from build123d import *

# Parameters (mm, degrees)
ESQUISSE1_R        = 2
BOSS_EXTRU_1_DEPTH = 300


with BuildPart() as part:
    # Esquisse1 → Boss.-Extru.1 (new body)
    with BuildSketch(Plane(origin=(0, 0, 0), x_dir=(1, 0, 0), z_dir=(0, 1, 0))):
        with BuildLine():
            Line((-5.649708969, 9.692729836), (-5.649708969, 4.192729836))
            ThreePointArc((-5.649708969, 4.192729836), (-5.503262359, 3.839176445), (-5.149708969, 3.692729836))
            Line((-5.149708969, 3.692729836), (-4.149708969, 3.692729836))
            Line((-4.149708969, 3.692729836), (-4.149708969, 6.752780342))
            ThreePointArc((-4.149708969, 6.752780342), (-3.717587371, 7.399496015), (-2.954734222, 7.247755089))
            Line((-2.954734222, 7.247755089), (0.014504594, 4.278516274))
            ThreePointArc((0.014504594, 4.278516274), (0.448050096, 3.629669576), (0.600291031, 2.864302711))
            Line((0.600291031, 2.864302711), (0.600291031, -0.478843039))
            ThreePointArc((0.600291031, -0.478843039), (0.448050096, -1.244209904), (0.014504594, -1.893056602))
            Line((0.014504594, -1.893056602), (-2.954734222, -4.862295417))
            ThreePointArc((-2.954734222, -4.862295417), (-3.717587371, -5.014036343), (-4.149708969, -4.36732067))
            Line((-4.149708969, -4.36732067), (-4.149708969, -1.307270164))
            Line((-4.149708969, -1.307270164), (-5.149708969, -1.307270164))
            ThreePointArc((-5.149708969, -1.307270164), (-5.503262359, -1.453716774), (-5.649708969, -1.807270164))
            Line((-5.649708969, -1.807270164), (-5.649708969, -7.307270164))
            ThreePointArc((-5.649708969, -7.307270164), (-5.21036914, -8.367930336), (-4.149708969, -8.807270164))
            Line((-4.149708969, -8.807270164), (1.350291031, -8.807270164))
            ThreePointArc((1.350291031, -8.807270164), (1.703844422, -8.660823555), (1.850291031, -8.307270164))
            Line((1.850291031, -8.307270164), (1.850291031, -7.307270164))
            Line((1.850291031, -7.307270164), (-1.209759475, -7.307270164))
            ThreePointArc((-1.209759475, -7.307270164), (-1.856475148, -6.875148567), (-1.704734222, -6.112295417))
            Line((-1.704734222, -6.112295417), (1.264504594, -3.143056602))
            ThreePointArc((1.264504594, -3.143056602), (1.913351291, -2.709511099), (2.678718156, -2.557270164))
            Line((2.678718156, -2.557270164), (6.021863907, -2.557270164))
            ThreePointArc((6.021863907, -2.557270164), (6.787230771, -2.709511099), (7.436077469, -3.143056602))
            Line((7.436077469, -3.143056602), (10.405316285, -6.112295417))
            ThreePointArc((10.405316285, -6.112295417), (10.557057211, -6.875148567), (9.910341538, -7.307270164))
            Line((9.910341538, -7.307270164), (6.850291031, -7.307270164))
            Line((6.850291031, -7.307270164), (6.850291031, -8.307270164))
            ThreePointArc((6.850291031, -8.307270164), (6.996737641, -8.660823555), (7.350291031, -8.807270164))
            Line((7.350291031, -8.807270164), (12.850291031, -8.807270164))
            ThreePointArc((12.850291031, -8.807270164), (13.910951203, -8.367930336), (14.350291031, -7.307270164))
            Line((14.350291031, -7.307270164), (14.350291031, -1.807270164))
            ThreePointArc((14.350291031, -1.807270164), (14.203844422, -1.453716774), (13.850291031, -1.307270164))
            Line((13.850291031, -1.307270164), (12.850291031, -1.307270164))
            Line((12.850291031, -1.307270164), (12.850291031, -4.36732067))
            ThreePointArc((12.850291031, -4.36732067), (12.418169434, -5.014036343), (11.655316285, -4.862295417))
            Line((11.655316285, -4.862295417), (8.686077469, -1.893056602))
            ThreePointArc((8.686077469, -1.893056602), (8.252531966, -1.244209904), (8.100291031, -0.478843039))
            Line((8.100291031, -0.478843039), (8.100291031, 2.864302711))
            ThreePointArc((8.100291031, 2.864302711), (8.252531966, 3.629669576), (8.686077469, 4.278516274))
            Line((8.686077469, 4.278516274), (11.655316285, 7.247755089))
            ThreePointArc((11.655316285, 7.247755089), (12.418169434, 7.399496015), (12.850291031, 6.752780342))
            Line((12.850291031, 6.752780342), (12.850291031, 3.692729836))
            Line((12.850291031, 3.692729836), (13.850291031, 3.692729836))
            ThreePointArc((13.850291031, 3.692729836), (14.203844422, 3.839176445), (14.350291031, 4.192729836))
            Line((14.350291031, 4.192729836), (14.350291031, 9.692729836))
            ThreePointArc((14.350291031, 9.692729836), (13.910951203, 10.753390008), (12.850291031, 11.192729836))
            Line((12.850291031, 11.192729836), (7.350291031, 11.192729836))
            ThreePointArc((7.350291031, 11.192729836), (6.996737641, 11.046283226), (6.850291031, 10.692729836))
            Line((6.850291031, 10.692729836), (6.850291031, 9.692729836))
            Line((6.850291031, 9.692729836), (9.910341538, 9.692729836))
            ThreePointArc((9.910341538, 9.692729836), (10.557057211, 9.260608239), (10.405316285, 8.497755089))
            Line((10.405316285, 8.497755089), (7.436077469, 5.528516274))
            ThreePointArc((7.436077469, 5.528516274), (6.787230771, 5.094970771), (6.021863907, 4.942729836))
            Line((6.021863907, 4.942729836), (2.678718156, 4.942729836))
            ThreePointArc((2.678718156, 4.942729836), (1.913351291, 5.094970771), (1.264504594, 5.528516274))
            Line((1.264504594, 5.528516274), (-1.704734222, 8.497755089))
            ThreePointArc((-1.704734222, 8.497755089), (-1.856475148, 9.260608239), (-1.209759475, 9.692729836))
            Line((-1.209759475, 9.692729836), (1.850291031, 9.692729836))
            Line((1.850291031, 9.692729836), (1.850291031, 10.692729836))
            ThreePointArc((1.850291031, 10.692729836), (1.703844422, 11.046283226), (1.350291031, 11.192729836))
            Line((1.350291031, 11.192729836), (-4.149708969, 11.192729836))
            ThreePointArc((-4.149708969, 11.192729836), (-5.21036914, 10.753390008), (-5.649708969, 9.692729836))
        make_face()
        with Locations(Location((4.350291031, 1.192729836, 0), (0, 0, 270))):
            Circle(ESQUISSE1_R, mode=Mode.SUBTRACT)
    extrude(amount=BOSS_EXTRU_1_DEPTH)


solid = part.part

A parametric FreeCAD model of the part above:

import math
import FreeCAD as App
import Part
import Sketcher

V = App.Vector

doc = App.newDocument("Part")
params = doc.addObject("Spreadsheet::Sheet", "Params")
for row, (alias, value) in enumerate([
    ("sketch1_diameter", "4 mm"),
    ("sketch1_radius", "0.5 mm"),
    ("sketch1_radius2", "0.7 mm"),
    ("sketch1_radius3", "1.5 mm"),
    ("sketch1_width", "5.5 mm"),
    ("pad1_length", "300 mm"),
], start=1):
    params.set(f"A{row}", alias)
    params.set(f"B{row}", "=" + value)
    params.setAlias(f"B{row}", alias)

body = doc.addObject("PartDesign::Body", "Body")

# Sketch on XZ plane
sketch1 = doc.addObject("Sketcher::SketchObject", "Sketch")
body.addObject(sketch1)
sketch1.AttachmentSupport = (doc.XZ_Plane, [""])
sketch1.MapMode = "FlatFace"
sketch1.addGeometry([
    Part.LineSegment(V(-5.65, -9.69, 0), V(-5.65, -4.19, 0)),  # 0
    Part.ArcOfCircle(Part.Circle(V(-5.15, -4.19, 0), V(0, 0, 1), 0.5), math.radians(90), math.radians(180)),  # 1
    Part.LineSegment(V(-5.15, -3.69, 0), V(-4.15, -3.69, 0)),  # 2
    Part.LineSegment(V(-4.15, -3.69, 0), V(-4.15, -6.75, 0)),  # 3
    Part.ArcOfCircle(Part.Circle(V(-3.45, -6.75, 0), V(0, 0, 1), 0.7), math.radians(180), math.radians(315)),  # 4
    Part.LineSegment(V(-2.95, -7.25, 0), V(0.01, -4.28, 0)),  # 5
    Part.ArcOfCircle(Part.Circle(V(-1.4, -2.86, 0), V(0, 0, 1), 2), math.radians(-45), math.radians(0)),  # 6
    Part.LineSegment(V(0.6, -2.86, 0), V(0.6, 0.48, 0)),  # 7
    Part.ArcOfCircle(Part.Circle(V(-1.4, 0.48, 0), V(0, 0, 1), 2), math.radians(0), math.radians(45)),  # 8
    Part.LineSegment(V(0.01, 1.89, 0), V(-2.95, 4.86, 0)),  # 9
    Part.ArcOfCircle(Part.Circle(V(-3.45, 4.37, 0), V(0, 0, 1), 0.7), math.radians(45), math.radians(180)),  # 10
    Part.LineSegment(V(-4.15, 4.37, 0), V(-4.15, 1.31, 0)),  # 11
    Part.LineSegment(V(-4.15, 1.31, 0), V(-5.15, 1.31, 0)),  # 12
    Part.ArcOfCircle(Part.Circle(V(-5.15, 1.81, 0), V(0, 0, 1), 0.5), math.radians(-180), math.radians(-90)),  # 13
    Part.LineSegment(V(-5.65, 1.81, 0), V(-5.65, 7.31, 0)),  # 14
    Part.ArcOfCircle(Part.Circle(V(-4.15, 7.31, 0), V(0, 0, 1), 1.5), math.radians(90), math.radians(180)),  # 15
    Part.LineSegment(V(-4.15, 8.81, 0), V(1.35, 8.81, 0)),  # 16
    Part.ArcOfCircle(Part.Circle(V(1.35, 8.31, 0), V(0, 0, 1), 0.5), math.radians(0), math.radians(90)),  # 17
    Part.LineSegment(V(1.85, 8.31, 0), V(1.85, 7.31, 0)),  # 18
    Part.LineSegment(V(1.85, 7.31, 0), V(-1.21, 7.31, 0)),  # 19
    Part.ArcOfCircle(Part.Circle(V(-1.21, 6.61, 0), V(0, 0, 1), 0.7), math.radians(90), math.radians(225)),  # 20
    Part.LineSegment(V(-1.7, 6.11, 0), V(1.26, 3.14, 0)),  # 21
    Part.ArcOfCircle(Part.Circle(V(2.68, 4.56, 0), V(0, 0, 1), 2), math.radians(-135), math.radians(-90)),  # 22
    Part.LineSegment(V(2.68, 2.56, 0), V(6.02, 2.56, 0)),  # 23
    Part.ArcOfCircle(Part.Circle(V(6.02, 4.56, 0), V(0, 0, 1), 2), math.radians(-90), math.radians(-45)),  # 24
    Part.LineSegment(V(7.44, 3.14, 0), V(10.41, 6.11, 0)),  # 25
    Part.ArcOfCircle(Part.Circle(V(9.91, 6.61, 0), V(0, 0, 1), 0.7), math.radians(-45), math.radians(90)),  # 26
    Part.LineSegment(V(9.91, 7.31, 0), V(6.85, 7.31, 0)),  # 27
    Part.LineSegment(V(6.85, 7.31, 0), V(6.85, 8.31, 0)),  # 28
    Part.ArcOfCircle(Part.Circle(V(7.35, 8.31, 0), V(0, 0, 1), 0.5), math.radians(90), math.radians(180)),  # 29
    Part.LineSegment(V(7.35, 8.81, 0), V(12.85, 8.81, 0)),  # 30
    Part.ArcOfCircle(Part.Circle(V(12.85, 7.31, 0), V(0, 0, 1), 1.5), math.radians(0), math.radians(90)),  # 31
    Part.LineSegment(V(14.35, 7.31, 0), V(14.35, 1.81, 0)),  # 32
    Part.ArcOfCircle(Part.Circle(V(13.85, 1.81, 0), V(0, 0, 1), 0.5), math.radians(-90), math.radians(0)),  # 33
    Part.LineSegment(V(13.85, 1.31, 0), V(12.85, 1.31, 0)),  # 34
    Part.LineSegment(V(12.85, 1.31, 0), V(12.85, 4.37, 0)),  # 35
    Part.ArcOfCircle(Part.Circle(V(12.15, 4.37, 0), V(0, 0, 1), 0.7), math.radians(0), math.radians(135)),  # 36
    Part.LineSegment(V(11.66, 4.86, 0), V(8.69, 1.89, 0)),  # 37
    Part.ArcOfCircle(Part.Circle(V(10.1, 0.48, 0), V(0, 0, 1), 2), math.radians(135), math.radians(180)),  # 38
    Part.LineSegment(V(8.1, 0.48, 0), V(8.1, -2.86, 0)),  # 39
    Part.ArcOfCircle(Part.Circle(V(10.1, -2.86, 0), V(0, 0, 1), 2), math.radians(180), math.radians(225)),  # 40
    Part.LineSegment(V(8.69, -4.28, 0), V(11.66, -7.25, 0)),  # 41
    Part.ArcOfCircle(Part.Circle(V(12.15, -6.75, 0), V(0, 0, 1), 0.7), math.radians(-135), math.radians(0)),  # 42
    Part.LineSegment(V(12.85, -6.75, 0), V(12.85, -3.69, 0)),  # 43
    Part.LineSegment(V(12.85, -3.69, 0), V(13.85, -3.69, 0)),  # 44
    Part.ArcOfCircle(Part.Circle(V(13.85, -4.19, 0), V(0, 0, 1), 0.5), math.radians(0), math.radians(90)),  # 45
    Part.LineSegment(V(14.35, -4.19, 0), V(14.35, -9.69, 0)),  # 46
    Part.ArcOfCircle(Part.Circle(V(12.85, -9.69, 0), V(0, 0, 1), 1.5), math.radians(-90), math.radians(0)),  # 47
    Part.LineSegment(V(12.85, -11.19, 0), V(7.35, -11.19, 0)),  # 48
    Part.ArcOfCircle(Part.Circle(V(7.35, -10.69, 0), V(0, 0, 1), 0.5), math.radians(-180), math.radians(-90)),  # 49
    Part.LineSegment(V(6.85, -10.69, 0), V(6.85, -9.69, 0)),  # 50
    Part.LineSegment(V(6.85, -9.69, 0), V(9.91, -9.69, 0)),  # 51
    Part.ArcOfCircle(Part.Circle(V(9.91, -8.99, 0), V(0, 0, 1), 0.7), math.radians(-90), math.radians(45)),  # 52
    Part.LineSegment(V(10.41, -8.5, 0), V(7.44, -5.53, 0)),  # 53
    Part.ArcOfCircle(Part.Circle(V(6.02, -6.94, 0), V(0, 0, 1), 2), math.radians(45), math.radians(90)),  # 54
    Part.LineSegment(V(6.02, -4.94, 0), V(2.68, -4.94, 0)),  # 55
    Part.ArcOfCircle(Part.Circle(V(2.68, -6.94, 0), V(0, 0, 1), 2), math.radians(90), math.radians(135)),  # 56
    Part.LineSegment(V(1.26, -5.53, 0), V(-1.7, -8.5, 0)),  # 57
    Part.ArcOfCircle(Part.Circle(V(-1.21, -8.99, 0), V(0, 0, 1), 0.7), math.radians(135), math.radians(270)),  # 58
    Part.LineSegment(V(-1.21, -9.69, 0), V(1.85, -9.69, 0)),  # 59
    Part.LineSegment(V(1.85, -9.69, 0), V(1.85, -10.69, 0)),  # 60
    Part.ArcOfCircle(Part.Circle(V(1.35, -10.69, 0), V(0, 0, 1), 0.5), math.radians(-90), math.radians(0)),  # 61
    Part.LineSegment(V(1.35, -11.19, 0), V(-4.15, -11.19, 0)),  # 62
    Part.ArcOfCircle(Part.Circle(V(-4.15, -9.69, 0), V(0, 0, 1), 1.5), math.radians(-180), math.radians(-90)),  # 63
    Part.Circle(V(4.35, -1.19, 0), V(0, 0, 1), 2),  # 64
], False)
sketch1.addConstraint([
    Sketcher.Constraint("Tangent", 0, 2, 1, 2),
    Sketcher.Constraint("Tangent", 1, 1, 2, 1),
    Sketcher.Constraint("Coincident", 2, 2, 3, 1),
    Sketcher.Constraint("Tangent", 3, 2, 4, 1),
    Sketcher.Constraint("Tangent", 4, 2, 5, 1),
    Sketcher.Constraint("Tangent", 5, 2, 6, 1),
    Sketcher.Constraint("Tangent", 6, 2, 7, 1),
    Sketcher.Constraint("Tangent", 7, 2, 8, 1),
    Sketcher.Constraint("Tangent", 8, 2, 9, 1),
    Sketcher.Constraint("Tangent", 9, 2, 10, 1),
    Sketcher.Constraint("Tangent", 10, 2, 11, 1),
    Sketcher.Constraint("Coincident", 11, 2, 12, 1),
    Sketcher.Constraint("Tangent", 12, 2, 13, 2),
    Sketcher.Constraint("Tangent", 13, 1, 14, 1),
    Sketcher.Constraint("Tangent", 14, 2, 15, 2),
    Sketcher.Constraint("Tangent", 15, 1, 16, 1),
    Sketcher.Constraint("Tangent", 16, 2, 17, 2),
    Sketcher.Constraint("Tangent", 17, 1, 18, 1),
    Sketcher.Constraint("Coincident", 18, 2, 19, 1),
    Sketcher.Constraint("Tangent", 19, 2, 20, 1),
    Sketcher.Constraint("Tangent", 20, 2, 21, 1),
    Sketcher.Constraint("Tangent", 21, 2, 22, 1),
    Sketcher.Constraint("Tangent", 22, 2, 23, 1),
    Sketcher.Constraint("Tangent", 23, 2, 24, 1),
    Sketcher.Constraint("Tangent", 24, 2, 25, 1),
    Sketcher.Constraint("Tangent", 25, 2, 26, 1),
    Sketcher.Constraint("Tangent", 26, 2, 27, 1),
    Sketcher.Constraint("Coincident", 27, 2, 28, 1),
    Sketcher.Constraint("Tangent", 28, 2, 29, 2),
    Sketcher.Constraint("Tangent", 29, 1, 30, 1),
    Sketcher.Constraint("Tangent", 30, 2, 31, 2),
    Sketcher.Constraint("Tangent", 31, 1, 32, 1),
    Sketcher.Constraint("Tangent", 32, 2, 33, 2),
    Sketcher.Constraint("Tangent", 33, 1, 34, 1),
    Sketcher.Constraint("Coincident", 34, 2, 35, 1),
    Sketcher.Constraint("Tangent", 35, 2, 36, 1),
    Sketcher.Constraint("Tangent", 36, 2, 37, 1),
    Sketcher.Constraint("Tangent", 37, 2, 38, 1),
    Sketcher.Constraint("Tangent", 38, 2, 39, 1),
    Sketcher.Constraint("Tangent", 39, 2, 40, 1),
    Sketcher.Constraint("Tangent", 40, 2, 41, 1),
    Sketcher.Constraint("Tangent", 41, 2, 42, 1),
    Sketcher.Constraint("Tangent", 42, 2, 43, 1),
    Sketcher.Constraint("Coincident", 43, 2, 44, 1),
    Sketcher.Constraint("Tangent", 44, 2, 45, 2),
    Sketcher.Constraint("Tangent", 45, 1, 46, 1),
    Sketcher.Constraint("Tangent", 46, 2, 47, 2),
    Sketcher.Constraint("Tangent", 47, 1, 48, 1),
    Sketcher.Constraint("Tangent", 48, 2, 49, 2),
    Sketcher.Constraint("Tangent", 49, 1, 50, 1),
    Sketcher.Constraint("Coincident", 50, 2, 51, 1),
    Sketcher.Constraint("Tangent", 51, 2, 52, 1),
    Sketcher.Constraint("Tangent", 52, 2, 53, 1),
    Sketcher.Constraint("Tangent", 53, 2, 54, 1),
    Sketcher.Constraint("Tangent", 54, 2, 55, 1),
    Sketcher.Constraint("Tangent", 55, 2, 56, 1),
    Sketcher.Constraint("Tangent", 56, 2, 57, 1),
    Sketcher.Constraint("Tangent", 57, 2, 58, 1),
    Sketcher.Constraint("Tangent", 58, 2, 59, 1),
    Sketcher.Constraint("Coincident", 59, 2, 60, 1),
    Sketcher.Constraint("Tangent", 60, 2, 61, 2),
    Sketcher.Constraint("Tangent", 61, 1, 62, 1),
    Sketcher.Constraint("Tangent", 62, 2, 63, 2),
    Sketcher.Constraint("Tangent", 63, 1, 0, 1),
    Sketcher.Constraint("Vertical", 0),
    Sketcher.Constraint("Horizontal", 2),
    Sketcher.Constraint("Vertical", 3),
    Sketcher.Constraint("Vertical", 7),
    Sketcher.Constraint("Vertical", 11),
    Sketcher.Constraint("Horizontal", 12),
    Sketcher.Constraint("Vertical", 14),
    Sketcher.Constraint("Horizontal", 16),
    Sketcher.Constraint("Vertical", 18),
    Sketcher.Constraint("Horizontal", 19),
    Sketcher.Constraint("Horizontal", 23),
    Sketcher.Constraint("Horizontal", 27),
    Sketcher.Constraint("Vertical", 28),
    Sketcher.Constraint("Horizontal", 30),
    Sketcher.Constraint("Vertical", 32),
    Sketcher.Constraint("Horizontal", 34),
    Sketcher.Constraint("Vertical", 35),
    Sketcher.Constraint("Vertical", 39),
    Sketcher.Constraint("Vertical", 43),
    Sketcher.Constraint("Horizontal", 44),
    Sketcher.Constraint("Vertical", 46),
    Sketcher.Constraint("Horizontal", 48),
    Sketcher.Constraint("Vertical", 50),
    Sketcher.Constraint("Horizontal", 51),
    Sketcher.Constraint("Horizontal", 55),
    Sketcher.Constraint("Horizontal", 59),
    Sketcher.Constraint("Vertical", 60),
    Sketcher.Constraint("Horizontal", 62),
    Sketcher.Constraint("Equal", 6, 8),
    Sketcher.Constraint("Equal", 4, 10),
    Sketcher.Constraint("Equal", 1, 13),
    Sketcher.Constraint("Equal", 13, 17),
    Sketcher.Constraint("Equal", 10, 20),
    Sketcher.Constraint("Equal", 8, 22),
    Sketcher.Constraint("Equal", 22, 24),
    Sketcher.Constraint("Equal", 20, 26),
    Sketcher.Constraint("Equal", 17, 29),
    Sketcher.Constraint("Equal", 15, 31),
    Sketcher.Constraint("Equal", 29, 33),
    Sketcher.Constraint("Equal", 26, 36),
    Sketcher.Constraint("Equal", 24, 38),
    Sketcher.Constraint("Equal", 38, 40),
    Sketcher.Constraint("Equal", 36, 42),
    Sketcher.Constraint("Equal", 33, 45),
    Sketcher.Constraint("Equal", 31, 47),
    Sketcher.Constraint("Equal", 45, 49),
    Sketcher.Constraint("Equal", 42, 52),
    Sketcher.Constraint("Equal", 40, 54),
    Sketcher.Constraint("Equal", 54, 56),
    Sketcher.Constraint("Equal", 52, 58),
    Sketcher.Constraint("Equal", 49, 61),
    Sketcher.Constraint("Equal", 47, 63),
    Sketcher.Constraint("Equal", 56, 64),
    Sketcher.Constraint("Perpendicular", 5, 9),
    Sketcher.Constraint("Parallel", 9, 21),
    Sketcher.Constraint("Perpendicular", 21, 25),
    Sketcher.Constraint("Parallel", 25, 37),
    Sketcher.Constraint("Perpendicular", 37, 41),
    Sketcher.Constraint("Parallel", 41, 53),
    Sketcher.Constraint("Perpendicular", 53, 57),
    Sketcher.Constraint("Horizontal", 20, 3, 26, 3),
    Sketcher.Constraint("Horizontal", 17, 3, 29, 3),
    Sketcher.Constraint("Horizontal", 13, 3, 33, 3),
    Sketcher.Constraint("Horizontal", 10, 3, 36, 3),
    Sketcher.Constraint("Horizontal", 8, 3, 38, 3),
    Sketcher.Constraint("Horizontal", 6, 3, 40, 3),
    Sketcher.Constraint("Horizontal", 4, 3, 42, 3),
    Sketcher.Constraint("Horizontal", 1, 3, 45, 3),
    Sketcher.Constraint("Horizontal", 52, 3, 58, 3),
    Sketcher.Constraint("Horizontal", 49, 3, 61, 3),
    Sketcher.Constraint("Horizontal", 14, 2, 18, 2),
    Sketcher.Constraint("Horizontal", 21, 2, 24, 2),
    Sketcher.Constraint("Horizontal", 46, 2, 50, 2),
    Sketcher.Constraint("Vertical", 4, 3, 10, 3),
    Sketcher.Constraint("Vertical", 1, 3, 13, 3),
    Sketcher.Constraint("Vertical", 33, 3, 45, 3),
    Sketcher.Constraint("Vertical", 29, 3, 49, 3),
    Sketcher.Constraint("Vertical", 26, 3, 52, 3),
    Sketcher.Constraint("Vertical", 24, 3, 54, 3),
    Sketcher.Constraint("Vertical", 22, 3, 56, 3),
    Sketcher.Constraint("Vertical", 17, 3, 61, 3),
    Sketcher.Constraint("Vertical", 63, 3, 2, 2),
    Sketcher.Constraint("Vertical", 30, 2, 34, 2),
    Sketcher.Constraint("Equal", 19, 27),
    Sketcher.Constraint("Equal", 16, 30),
    Sketcher.Constraint("Equal", 62, 0),
    Sketcher.Constraint("Equal", 59, 3),
    Sketcher.Constraint("Equal", 55, 7),
    Sketcher.Constraint("Equal", 3, 11),
    Sketcher.Constraint("Equal", 0, 14),
    Sketcher.Constraint("Equal", 9, 21),
    Sketcher.Constraint("Diameter", 64, 4.0),
    Sketcher.Constraint("Radius", 1, 0.5),
    Sketcher.Constraint("Radius", 4, 0.7),
    Sketcher.Constraint("Radius", 15, 1.5),
    Sketcher.Constraint("DistanceX", 16, 1, 16, 2, 5.5),
    Sketcher.Constraint("DistanceX", 19, 2, 19, 1, 3.060051),
    Sketcher.Constraint("DistanceX", 23, 1, 23, 2, 3.343146),
    Sketcher.Constraint("DistanceX", 1, 3, -1, 1, 5.149709),
    Sketcher.Constraint("DistanceY", 1, 3, -1, 1, 4.19273),
    Sketcher.Constraint("DistanceX", 6, 3, -1, 1, 1.399709),
    Sketcher.Constraint("DistanceX", -1, 1, 64, 3, 4.350291),
    Sketcher.Constraint("DistanceY", 64, 3, -1, 1, 1.19273),
])
sketch1.setExpression("Constraints[155]", "Params.sketch1_diameter")
sketch1.setExpression("Constraints[156]", "Params.sketch1_radius")
sketch1.setExpression("Constraints[157]", "Params.sketch1_radius2")
sketch1.setExpression("Constraints[158]", "Params.sketch1_radius3")
sketch1.setExpression("Constraints[159]", "Params.sketch1_width")
pad1 = doc.addObject("PartDesign::Pad", "Pad")
body.addObject(pad1)
pad1.Profile = sketch1
pad1.setExpression("Length", "Params.pad1_length")
pad1.Reversed = True

doc.recompute()
